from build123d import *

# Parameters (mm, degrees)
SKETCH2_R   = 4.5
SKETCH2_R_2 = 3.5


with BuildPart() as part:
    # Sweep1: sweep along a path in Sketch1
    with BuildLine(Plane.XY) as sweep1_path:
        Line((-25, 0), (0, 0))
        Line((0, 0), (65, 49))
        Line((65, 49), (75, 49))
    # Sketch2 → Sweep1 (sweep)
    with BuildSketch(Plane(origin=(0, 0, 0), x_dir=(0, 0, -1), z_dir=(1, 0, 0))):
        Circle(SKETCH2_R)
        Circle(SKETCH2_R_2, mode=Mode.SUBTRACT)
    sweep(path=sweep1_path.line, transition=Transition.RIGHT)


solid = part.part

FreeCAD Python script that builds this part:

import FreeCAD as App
import Part
import Sketcher

doc = App.newDocument("Part")
body = doc.addObject("PartDesign::Body", "Body")

# Sketch on YZ plane
sketch1 = body.newObject("Sketcher::SketchObject", "Sketch")
sketch1.AttachmentSupport = (doc.getObject("YZ_Plane"), [""])
sketch1.MapMode = "FlatFace"
sketch1.addGeometry(Part.Circle(App.Vector(0, 0, 0), App.Vector(0, 0, 1), 4.5), False)
sketch1.addGeometry(Part.Circle(App.Vector(0, 0, 0), App.Vector(0, 0, 1), 3.5), False)
sketch1.addConstraint(Sketcher.Constraint("Coincident", 0, 3, -1, 1))
sketch1.addConstraint(Sketcher.Constraint("Coincident", 1, 3, -1, 1))
sketch1.addConstraint(Sketcher.Constraint("Diameter", 0, 9.0))
sketch1.addConstraint(Sketcher.Constraint("Diameter", 1, 7.0))

# Sketch on XY plane
sketch2 = body.newObject("Sketcher::SketchObject", "Sketch001")
sketch2.AttachmentSupport = (doc.getObject("XY_Plane"), [""])
sketch2.MapMode = "FlatFace"
sketch2.addGeometry(Part.LineSegment(App.Vector(-25, 0, 0), App.Vector(0, 0, 0)), False)
sketch2.addGeometry(Part.LineSegment(App.Vector(0, 0, 0), App.Vector(65, 49, 0)), False)
sketch2.addGeometry(Part.LineSegment(App.Vector(65, 49, 0), App.Vector(75, 49, 0)), False)
sketch2.addConstraint(Sketcher.Constraint("Coincident", 0, 2, 1, 1))
sketch2.addConstraint(Sketcher.Constraint("Coincident", 1, 2, 2, 1))
sketch2.addConstraint(Sketcher.Constraint("Horizontal", 0))
sketch2.addConstraint(Sketcher.Constraint("Horizontal", 2))
sketch2.addConstraint(Sketcher.Constraint("Coincident", 0, 2, -1, 1))
sketch2.addConstraint(Sketcher.Constraint("DistanceX", 0, 1, 0, 2, 25.0))
sketch2.addConstraint(Sketcher.Constraint("DistanceX", 2, 1, 2, 2, 10.0))
sketch2.addConstraint(Sketcher.Constraint("DistanceX", -1, 1, 1, 2, 65.0))
sketch2.addConstraint(Sketcher.Constraint("DistanceY", -1, 1, 1, 2, 49.0))
doc.recompute()

additivepipe = body.newObject("PartDesign::AdditivePipe", "AdditivePipe")
additivepipe.Profile = sketch1
additivepipe.Spine = (sketch2, ["Edge1", "Edge2", "Edge3"])
additivepipe.Transition = "Right corner"

doc.recompute()
